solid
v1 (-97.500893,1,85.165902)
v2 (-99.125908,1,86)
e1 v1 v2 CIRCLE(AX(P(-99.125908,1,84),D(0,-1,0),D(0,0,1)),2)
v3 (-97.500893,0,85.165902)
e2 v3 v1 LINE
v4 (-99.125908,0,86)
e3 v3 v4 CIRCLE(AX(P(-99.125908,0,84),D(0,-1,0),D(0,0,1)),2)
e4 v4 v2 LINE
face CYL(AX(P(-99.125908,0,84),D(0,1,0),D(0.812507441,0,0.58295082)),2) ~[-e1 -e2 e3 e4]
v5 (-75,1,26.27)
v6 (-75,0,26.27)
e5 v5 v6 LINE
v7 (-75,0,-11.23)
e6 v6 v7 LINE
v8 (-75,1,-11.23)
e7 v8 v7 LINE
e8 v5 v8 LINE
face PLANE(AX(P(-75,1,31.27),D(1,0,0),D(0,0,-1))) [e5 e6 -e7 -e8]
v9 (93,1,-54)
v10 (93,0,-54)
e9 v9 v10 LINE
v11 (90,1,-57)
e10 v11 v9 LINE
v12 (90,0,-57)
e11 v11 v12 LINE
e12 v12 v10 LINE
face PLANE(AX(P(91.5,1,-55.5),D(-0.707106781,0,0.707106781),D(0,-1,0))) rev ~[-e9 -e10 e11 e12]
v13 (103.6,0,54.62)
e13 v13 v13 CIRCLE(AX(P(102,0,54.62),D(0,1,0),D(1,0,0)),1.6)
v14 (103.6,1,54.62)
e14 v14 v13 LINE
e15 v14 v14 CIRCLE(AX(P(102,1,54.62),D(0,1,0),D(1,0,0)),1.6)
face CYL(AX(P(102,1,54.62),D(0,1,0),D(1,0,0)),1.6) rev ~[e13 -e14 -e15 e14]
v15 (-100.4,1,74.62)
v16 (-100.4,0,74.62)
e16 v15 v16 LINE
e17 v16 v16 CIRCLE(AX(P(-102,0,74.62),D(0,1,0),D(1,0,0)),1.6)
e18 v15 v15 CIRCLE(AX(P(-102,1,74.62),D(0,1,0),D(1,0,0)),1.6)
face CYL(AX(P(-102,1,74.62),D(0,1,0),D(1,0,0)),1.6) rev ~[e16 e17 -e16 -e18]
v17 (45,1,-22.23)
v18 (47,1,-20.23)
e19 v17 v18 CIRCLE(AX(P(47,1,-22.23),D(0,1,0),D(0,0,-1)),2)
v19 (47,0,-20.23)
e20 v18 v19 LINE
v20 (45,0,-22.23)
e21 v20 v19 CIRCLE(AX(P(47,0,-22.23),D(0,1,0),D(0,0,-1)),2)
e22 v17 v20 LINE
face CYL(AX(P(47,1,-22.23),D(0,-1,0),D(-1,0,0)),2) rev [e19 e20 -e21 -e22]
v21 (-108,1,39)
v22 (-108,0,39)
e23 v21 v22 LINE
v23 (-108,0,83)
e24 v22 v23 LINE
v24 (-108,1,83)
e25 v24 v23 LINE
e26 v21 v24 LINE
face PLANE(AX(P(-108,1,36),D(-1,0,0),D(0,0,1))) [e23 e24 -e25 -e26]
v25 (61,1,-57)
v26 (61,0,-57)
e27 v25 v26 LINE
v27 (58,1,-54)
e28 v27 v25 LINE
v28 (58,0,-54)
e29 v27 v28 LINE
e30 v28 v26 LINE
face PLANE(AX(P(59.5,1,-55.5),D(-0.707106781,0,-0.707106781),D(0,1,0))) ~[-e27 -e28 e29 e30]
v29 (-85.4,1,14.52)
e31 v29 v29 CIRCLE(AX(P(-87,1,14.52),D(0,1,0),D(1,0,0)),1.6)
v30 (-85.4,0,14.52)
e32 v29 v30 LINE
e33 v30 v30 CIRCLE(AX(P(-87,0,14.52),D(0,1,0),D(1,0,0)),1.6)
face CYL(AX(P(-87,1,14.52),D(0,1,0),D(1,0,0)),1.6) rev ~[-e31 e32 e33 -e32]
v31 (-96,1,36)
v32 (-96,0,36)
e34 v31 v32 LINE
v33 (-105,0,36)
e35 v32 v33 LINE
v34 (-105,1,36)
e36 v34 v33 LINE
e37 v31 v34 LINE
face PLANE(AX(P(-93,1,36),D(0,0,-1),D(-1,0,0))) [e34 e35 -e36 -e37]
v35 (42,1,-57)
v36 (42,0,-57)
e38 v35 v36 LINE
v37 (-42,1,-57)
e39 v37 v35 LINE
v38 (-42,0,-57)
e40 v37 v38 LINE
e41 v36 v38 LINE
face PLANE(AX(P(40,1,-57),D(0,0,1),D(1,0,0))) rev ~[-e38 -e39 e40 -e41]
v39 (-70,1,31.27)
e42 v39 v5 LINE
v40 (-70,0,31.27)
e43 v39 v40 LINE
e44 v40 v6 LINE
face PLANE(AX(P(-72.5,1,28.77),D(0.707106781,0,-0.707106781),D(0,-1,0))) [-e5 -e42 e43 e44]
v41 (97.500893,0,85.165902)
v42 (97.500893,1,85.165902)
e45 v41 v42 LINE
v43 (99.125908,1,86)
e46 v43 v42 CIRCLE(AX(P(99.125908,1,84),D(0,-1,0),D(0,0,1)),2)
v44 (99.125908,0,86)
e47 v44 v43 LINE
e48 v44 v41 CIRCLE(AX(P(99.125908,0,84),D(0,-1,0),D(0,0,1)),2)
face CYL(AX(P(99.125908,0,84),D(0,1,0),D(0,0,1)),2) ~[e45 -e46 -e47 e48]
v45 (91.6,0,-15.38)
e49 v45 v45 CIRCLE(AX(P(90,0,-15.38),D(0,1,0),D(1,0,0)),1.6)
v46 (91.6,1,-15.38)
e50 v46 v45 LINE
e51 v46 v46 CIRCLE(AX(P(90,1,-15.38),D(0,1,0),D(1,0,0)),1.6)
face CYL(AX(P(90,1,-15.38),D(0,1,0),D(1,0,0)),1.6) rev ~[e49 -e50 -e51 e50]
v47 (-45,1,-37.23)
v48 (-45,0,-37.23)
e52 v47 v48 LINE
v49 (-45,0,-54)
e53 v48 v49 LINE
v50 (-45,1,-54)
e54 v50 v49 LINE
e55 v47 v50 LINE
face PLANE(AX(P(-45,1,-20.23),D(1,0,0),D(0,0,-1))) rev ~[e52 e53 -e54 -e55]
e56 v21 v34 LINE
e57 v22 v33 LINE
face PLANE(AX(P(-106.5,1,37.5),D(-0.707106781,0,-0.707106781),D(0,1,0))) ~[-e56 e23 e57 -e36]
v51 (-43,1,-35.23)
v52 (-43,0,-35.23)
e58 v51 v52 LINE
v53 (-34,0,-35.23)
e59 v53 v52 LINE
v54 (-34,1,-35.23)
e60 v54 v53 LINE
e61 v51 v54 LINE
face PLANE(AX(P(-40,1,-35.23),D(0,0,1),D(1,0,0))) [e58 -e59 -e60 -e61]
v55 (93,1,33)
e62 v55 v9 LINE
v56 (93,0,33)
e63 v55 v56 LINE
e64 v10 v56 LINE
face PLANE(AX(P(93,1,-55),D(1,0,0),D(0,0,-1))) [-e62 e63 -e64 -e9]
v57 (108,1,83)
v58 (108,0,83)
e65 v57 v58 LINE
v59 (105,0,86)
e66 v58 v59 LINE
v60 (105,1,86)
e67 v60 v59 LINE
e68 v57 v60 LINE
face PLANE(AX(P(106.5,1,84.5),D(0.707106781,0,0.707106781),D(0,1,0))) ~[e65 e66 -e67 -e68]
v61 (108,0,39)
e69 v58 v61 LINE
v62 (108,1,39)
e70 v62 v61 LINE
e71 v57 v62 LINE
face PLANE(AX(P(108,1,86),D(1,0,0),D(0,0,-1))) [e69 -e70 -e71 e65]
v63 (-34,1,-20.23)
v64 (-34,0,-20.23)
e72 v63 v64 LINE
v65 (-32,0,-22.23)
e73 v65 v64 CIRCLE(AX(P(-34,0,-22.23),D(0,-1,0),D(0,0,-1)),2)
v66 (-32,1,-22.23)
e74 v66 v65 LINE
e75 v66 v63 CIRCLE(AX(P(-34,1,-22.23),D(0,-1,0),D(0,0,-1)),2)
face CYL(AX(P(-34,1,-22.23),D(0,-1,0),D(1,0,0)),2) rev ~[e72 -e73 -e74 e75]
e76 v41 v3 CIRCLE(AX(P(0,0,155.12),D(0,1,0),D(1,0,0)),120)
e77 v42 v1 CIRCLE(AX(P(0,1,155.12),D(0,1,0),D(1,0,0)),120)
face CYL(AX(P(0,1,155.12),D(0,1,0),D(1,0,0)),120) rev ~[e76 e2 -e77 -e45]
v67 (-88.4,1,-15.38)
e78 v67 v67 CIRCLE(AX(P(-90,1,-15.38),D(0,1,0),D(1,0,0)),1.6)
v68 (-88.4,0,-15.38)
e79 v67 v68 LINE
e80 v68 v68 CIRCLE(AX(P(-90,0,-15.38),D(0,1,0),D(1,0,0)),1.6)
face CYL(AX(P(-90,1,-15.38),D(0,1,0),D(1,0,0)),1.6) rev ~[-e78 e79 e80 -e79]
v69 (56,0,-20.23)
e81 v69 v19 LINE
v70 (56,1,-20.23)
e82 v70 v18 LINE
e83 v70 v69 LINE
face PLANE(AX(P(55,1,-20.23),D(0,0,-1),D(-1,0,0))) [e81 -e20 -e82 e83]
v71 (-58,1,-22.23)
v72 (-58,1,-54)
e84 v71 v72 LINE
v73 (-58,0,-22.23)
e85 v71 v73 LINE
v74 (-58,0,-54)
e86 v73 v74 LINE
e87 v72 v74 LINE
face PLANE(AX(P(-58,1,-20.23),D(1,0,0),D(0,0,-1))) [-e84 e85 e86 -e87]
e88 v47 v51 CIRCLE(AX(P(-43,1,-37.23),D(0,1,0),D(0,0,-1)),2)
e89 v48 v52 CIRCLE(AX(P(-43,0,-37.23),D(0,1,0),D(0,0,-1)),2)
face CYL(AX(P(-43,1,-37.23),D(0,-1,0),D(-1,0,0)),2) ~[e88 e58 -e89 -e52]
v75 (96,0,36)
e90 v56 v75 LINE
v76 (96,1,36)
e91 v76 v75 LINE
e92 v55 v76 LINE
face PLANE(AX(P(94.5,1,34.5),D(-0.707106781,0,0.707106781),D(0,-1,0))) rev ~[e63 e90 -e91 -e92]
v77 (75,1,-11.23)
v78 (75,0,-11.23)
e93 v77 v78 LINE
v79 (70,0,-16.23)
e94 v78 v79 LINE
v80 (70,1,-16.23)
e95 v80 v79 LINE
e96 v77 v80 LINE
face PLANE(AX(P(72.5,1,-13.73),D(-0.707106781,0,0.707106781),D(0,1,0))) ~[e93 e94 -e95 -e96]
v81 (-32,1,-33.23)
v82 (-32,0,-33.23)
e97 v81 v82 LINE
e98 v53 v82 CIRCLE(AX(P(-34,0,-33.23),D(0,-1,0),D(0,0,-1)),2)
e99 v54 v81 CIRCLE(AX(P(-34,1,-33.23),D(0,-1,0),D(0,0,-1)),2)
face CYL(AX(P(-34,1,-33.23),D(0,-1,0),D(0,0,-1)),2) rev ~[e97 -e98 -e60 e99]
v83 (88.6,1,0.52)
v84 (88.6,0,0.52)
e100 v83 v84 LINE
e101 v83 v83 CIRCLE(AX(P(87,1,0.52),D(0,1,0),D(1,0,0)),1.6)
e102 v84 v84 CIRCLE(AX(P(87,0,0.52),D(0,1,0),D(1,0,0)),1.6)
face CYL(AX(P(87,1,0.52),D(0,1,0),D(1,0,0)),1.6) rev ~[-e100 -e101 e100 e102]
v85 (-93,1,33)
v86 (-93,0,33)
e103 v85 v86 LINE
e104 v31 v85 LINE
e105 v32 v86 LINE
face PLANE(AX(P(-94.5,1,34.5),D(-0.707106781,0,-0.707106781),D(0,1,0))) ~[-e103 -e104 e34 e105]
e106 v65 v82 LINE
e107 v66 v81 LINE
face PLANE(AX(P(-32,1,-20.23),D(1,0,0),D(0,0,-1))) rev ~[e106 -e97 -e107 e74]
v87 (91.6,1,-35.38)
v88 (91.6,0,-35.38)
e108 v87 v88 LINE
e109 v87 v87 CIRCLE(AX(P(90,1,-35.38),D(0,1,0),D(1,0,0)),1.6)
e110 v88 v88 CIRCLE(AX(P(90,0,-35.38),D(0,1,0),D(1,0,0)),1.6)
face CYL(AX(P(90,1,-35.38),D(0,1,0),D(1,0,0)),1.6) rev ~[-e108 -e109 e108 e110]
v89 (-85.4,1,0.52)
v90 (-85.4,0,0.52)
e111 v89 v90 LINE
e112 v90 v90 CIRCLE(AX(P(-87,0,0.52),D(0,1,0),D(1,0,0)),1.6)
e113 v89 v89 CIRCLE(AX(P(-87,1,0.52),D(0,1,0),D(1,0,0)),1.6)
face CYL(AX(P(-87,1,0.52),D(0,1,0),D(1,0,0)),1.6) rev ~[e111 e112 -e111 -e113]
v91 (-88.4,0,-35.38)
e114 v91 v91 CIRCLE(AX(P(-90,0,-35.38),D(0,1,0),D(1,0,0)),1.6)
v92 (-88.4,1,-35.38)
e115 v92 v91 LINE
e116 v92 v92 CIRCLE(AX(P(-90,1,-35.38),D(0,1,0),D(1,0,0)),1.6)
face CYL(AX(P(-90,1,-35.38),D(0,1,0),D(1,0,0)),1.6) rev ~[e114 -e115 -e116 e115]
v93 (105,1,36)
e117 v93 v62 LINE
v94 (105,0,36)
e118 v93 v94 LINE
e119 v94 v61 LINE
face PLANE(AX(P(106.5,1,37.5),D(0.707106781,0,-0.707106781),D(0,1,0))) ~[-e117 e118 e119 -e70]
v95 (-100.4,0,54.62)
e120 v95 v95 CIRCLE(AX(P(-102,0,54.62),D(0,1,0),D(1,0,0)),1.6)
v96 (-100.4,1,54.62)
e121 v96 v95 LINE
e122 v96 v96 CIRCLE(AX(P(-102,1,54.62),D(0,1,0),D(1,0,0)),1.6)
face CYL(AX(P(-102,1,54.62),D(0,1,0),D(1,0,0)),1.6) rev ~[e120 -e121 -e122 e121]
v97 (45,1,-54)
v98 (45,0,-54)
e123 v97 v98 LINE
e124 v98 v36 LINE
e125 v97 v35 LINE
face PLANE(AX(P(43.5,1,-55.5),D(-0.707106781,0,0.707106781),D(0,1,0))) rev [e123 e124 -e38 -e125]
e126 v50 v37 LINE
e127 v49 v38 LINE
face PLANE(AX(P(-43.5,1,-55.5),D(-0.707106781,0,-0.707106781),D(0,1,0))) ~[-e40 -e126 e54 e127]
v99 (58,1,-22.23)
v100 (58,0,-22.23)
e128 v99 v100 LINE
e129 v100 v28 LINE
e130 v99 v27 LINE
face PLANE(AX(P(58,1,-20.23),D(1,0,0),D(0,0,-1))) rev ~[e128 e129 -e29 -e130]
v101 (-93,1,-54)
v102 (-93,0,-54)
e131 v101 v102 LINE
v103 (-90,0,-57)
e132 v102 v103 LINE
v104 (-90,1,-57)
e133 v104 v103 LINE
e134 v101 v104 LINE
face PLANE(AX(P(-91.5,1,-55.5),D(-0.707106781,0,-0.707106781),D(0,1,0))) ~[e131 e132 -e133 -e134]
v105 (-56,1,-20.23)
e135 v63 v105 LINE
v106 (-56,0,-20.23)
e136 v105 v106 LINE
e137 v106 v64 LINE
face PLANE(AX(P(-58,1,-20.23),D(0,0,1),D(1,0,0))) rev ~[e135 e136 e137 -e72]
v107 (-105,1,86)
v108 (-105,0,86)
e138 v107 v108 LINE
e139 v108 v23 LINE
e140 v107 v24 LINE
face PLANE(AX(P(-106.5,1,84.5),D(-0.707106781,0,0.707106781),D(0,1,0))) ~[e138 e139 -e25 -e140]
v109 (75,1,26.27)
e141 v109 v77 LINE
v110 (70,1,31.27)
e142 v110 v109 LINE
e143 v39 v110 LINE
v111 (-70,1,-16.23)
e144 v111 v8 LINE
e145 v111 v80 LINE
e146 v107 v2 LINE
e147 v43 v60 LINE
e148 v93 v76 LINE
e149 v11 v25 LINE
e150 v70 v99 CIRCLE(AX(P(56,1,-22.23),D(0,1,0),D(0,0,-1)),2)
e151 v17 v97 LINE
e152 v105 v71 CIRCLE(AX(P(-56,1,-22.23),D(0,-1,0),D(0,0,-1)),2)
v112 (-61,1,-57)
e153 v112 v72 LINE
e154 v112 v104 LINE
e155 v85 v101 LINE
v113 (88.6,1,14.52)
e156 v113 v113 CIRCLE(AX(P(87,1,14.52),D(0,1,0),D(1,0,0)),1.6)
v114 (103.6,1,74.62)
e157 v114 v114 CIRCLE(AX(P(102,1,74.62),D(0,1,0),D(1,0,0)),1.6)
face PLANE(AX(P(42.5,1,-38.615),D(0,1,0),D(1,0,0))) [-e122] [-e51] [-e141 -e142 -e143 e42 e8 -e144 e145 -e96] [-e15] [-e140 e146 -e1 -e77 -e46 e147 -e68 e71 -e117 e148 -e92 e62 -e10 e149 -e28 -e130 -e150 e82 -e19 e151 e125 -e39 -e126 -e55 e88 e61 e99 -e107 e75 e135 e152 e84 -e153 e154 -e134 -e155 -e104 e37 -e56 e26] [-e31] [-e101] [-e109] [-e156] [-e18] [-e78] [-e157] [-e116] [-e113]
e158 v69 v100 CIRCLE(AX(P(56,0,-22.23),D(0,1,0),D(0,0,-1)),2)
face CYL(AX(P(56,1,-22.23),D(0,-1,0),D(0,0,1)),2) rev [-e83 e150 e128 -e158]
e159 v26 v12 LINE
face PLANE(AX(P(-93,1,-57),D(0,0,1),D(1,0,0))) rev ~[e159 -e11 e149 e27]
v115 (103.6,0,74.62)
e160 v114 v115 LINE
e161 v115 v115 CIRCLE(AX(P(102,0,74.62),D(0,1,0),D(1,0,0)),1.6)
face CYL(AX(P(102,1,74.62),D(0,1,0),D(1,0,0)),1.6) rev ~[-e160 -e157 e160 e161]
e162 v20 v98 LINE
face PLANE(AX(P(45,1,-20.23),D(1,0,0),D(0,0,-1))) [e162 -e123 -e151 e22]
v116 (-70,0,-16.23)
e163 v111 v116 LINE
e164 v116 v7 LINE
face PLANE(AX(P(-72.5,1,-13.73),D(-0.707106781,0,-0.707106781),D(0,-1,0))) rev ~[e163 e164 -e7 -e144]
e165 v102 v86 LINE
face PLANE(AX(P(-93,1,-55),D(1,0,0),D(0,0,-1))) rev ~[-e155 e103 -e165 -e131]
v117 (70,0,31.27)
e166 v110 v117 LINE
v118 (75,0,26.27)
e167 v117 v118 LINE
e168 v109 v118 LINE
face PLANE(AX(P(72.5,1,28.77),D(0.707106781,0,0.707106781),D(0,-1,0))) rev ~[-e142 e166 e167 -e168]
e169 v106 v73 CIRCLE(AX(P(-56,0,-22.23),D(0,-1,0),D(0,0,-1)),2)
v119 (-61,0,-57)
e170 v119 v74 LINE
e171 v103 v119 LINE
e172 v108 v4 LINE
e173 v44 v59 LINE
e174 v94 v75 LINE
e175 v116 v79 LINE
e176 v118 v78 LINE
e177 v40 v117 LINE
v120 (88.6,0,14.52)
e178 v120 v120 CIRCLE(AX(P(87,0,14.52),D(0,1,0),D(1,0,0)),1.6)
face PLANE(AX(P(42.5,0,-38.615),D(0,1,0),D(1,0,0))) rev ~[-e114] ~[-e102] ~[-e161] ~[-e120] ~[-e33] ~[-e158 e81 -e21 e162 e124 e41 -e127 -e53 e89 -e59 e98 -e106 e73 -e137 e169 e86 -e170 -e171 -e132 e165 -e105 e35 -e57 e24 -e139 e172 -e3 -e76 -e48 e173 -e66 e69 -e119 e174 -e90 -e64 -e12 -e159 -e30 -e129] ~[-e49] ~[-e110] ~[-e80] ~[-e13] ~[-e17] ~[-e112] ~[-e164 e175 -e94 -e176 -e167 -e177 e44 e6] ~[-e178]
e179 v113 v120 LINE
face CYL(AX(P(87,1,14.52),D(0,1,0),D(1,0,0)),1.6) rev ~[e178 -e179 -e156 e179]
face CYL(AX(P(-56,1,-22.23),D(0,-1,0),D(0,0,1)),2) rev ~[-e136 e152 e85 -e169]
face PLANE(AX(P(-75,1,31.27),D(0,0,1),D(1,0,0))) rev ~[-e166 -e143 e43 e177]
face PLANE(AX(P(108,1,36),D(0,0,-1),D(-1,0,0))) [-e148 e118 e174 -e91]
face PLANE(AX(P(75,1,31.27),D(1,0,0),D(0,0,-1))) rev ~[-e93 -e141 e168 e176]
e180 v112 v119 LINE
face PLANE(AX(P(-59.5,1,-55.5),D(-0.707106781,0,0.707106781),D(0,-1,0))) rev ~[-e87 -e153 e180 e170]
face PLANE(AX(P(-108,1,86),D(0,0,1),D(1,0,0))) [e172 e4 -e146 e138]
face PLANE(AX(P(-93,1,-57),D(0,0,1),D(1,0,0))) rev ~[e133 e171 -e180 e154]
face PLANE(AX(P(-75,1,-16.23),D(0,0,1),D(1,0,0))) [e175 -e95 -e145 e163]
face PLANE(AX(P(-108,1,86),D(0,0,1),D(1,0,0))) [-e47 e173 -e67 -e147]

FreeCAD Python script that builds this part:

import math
import FreeCAD as App
import Part
import Sketcher

V = App.Vector


def edges_at(feature, points):
    """Names of the edges that pass closest to the given points."""
    edges = feature.Shape.Edges
    near = lambda p: min(range(len(edges)), key=lambda i: edges[i].distToShape(Part.Vertex(*p))[0])
    return sorted({f"Edge{near(p) + 1}" for p in points})


def add_polygon(sketch, points):
    """Adds a closed chain of lines whose ends are joined by coincident constraints."""
    first, n = sketch.GeometryCount, len(points)
    for a, b in zip(points, points[1:] + points[:1]):
        sketch.addGeometry(Part.LineSegment(App.Vector(*a, 0), App.Vector(*b, 0)), False)
    for i in range(n):
        sketch.addConstraint(Sketcher.Constraint("Coincident", first + i, 2, first + (i + 1) % n, 1))

doc = App.newDocument("Part")
body = doc.addObject("PartDesign::Body", "Body")

# Sketch on XZ plane
sketch1 = body.newObject("Sketcher::SketchObject", "Sketch")
sketch1.AttachmentSupport = (doc.getObject("XZ_Plane"), [""])
sketch1.MapMode = "FlatFace"
add_polygon(sketch1, [(-93, -55), (-93, 55), (93, 55), (93, -55)])  # lines 0-3
sketch1.addConstraint(Sketcher.Constraint("Vertical", 0))
sketch1.addConstraint(Sketcher.Constraint("Horizontal", 1))
sketch1.addConstraint(Sketcher.Constraint("Vertical", 2))
sketch1.addConstraint(Sketcher.Constraint("Horizontal", 3))
sketch1.addConstraint(Sketcher.Constraint("Symmetric", 0, 2, 2, 2, -1, 1))
sketch1.addConstraint(Sketcher.Constraint("DistanceX", 1, 1, 1, 2, 186.0))
sketch1.addConstraint(Sketcher.Constraint("DistanceY", 0, 1, 0, 2, 110.0))
pad1 = body.newObject("PartDesign::Pad", "Pad")
pad1.Profile = sketch1
pad1.Length = 1
pad1.Reversed = True

# Sketch on XZ plane
sketch2 = body.newObject("Sketcher::SketchObject", "Sketch001")
sketch2.AttachmentSupport = (doc.getObject("XZ_Plane"), [""])
sketch2.MapMode = "FlatFace"
sketch2.AttachmentOffset = App.Placement(V(0, 0, -1), App.Rotation())
sketch2.addGeometry(Part.Circle(V(90, -15.4, 0), V(0, 0, 1), 1.6), False)
sketch2.addGeometry(Part.Circle(V(90, -35.4, 0), V(0, 0, 1), 1.6), False)
sketch2.addGeometry(Part.Circle(V(-90, -35.4, 0), V(0, 0, 1), 1.6), False)
sketch2.addGeometry(Part.Circle(V(-90, -15.4, 0), V(0, 0, 1), 1.6), False)
sketch2.addConstraint(Sketcher.Constraint("Equal", 0, 1))
sketch2.addConstraint(Sketcher.Constraint("Equal", 1, 2))
sketch2.addConstraint(Sketcher.Constraint("Equal", 2, 3))
sketch2.addConstraint(Sketcher.Constraint("Symmetric", 1, 3, 2, 3, -2))
sketch2.addConstraint(Sketcher.Constraint("Symmetric", 0, 3, 3, 3, -2))
sketch2.addConstraint(Sketcher.Constraint("Vertical", 0, 3, 1, 3))
sketch2.addConstraint(Sketcher.Constraint("Diameter", 0, 3.2))
sketch2.addConstraint(Sketcher.Constraint("DistanceX", -1, 1, 0, 3, 90.0))
sketch2.addConstraint(Sketcher.Constraint("DistanceY", 1, 3, 0, 3, 20.0))
sketch2.addConstraint(Sketcher.Constraint("DistanceY", 0, 3, -1, 1, 15.38))
pocket1 = body.newObject("PartDesign::Pocket", "Pocket")
pocket1.Profile = sketch2
pocket1.Type = "ThroughAll"
pocket1.Reversed = True

# Sketch on XZ plane
sketch3 = body.newObject("Sketcher::SketchObject", "Sketch002")
sketch3.AttachmentSupport = (doc.getObject("XZ_Plane"), [""])
sketch3.MapMode = "FlatFace"
sketch3.AttachmentOffset = App.Placement(V(0, 0, -1), App.Rotation())
add_polygon(sketch3, [(-108, 86), (108, 86), (108, 36), (93, 36), (93, 55), (-93, 55), (-93, 36), (-108, 36)])  # lines 0-7
sketch3.addConstraint(Sketcher.Constraint("Horizontal", 0))
sketch3.addConstraint(Sketcher.Constraint("Vertical", 1))
sketch3.addConstraint(Sketcher.Constraint("Horizontal", 2))
sketch3.addConstraint(Sketcher.Constraint("Vertical", 3))
sketch3.addConstraint(Sketcher.Constraint("Horizontal", 4))
sketch3.addConstraint(Sketcher.Constraint("Vertical", 5))
sketch3.addConstraint(Sketcher.Constraint("Horizontal", 6))
sketch3.addConstraint(Sketcher.Constraint("Vertical", 7))
sketch3.addConstraint(Sketcher.Constraint("Symmetric", 2, 2, 5, 2, -2))
sketch3.addConstraint(Sketcher.Constraint("Equal", 2, 6))
sketch3.addConstraint(Sketcher.Constraint("DistanceX", 0, 1, 0, 2, 216.0))
sketch3.addConstraint(Sketcher.Constraint("DistanceX", 2, 2, 2, 1, 15.0))
sketch3.addConstraint(Sketcher.Constraint("DistanceY", 1, 2, 1, 1, 50.0))
sketch3.addConstraint(Sketcher.Constraint("DistanceY", 3, 1, 3, 2, 19.0))
sketch3.addConstraint(Sketcher.Constraint("DistanceY", -1, 1, 0, 2, 86.0))
pad2 = body.newObject("PartDesign::Pad", "Pad001")
pad2.Profile = sketch3
pad2.Length = 1

# Sketch on XZ plane
sketch4 = body.newObject("Sketcher::SketchObject", "Sketch003")
sketch4.AttachmentSupport = (doc.getObject("XZ_Plane"), [""])
sketch4.MapMode = "FlatFace"
sketch4.AttachmentOffset = App.Placement(V(0, 0, -1), App.Rotation())
sketch4.addGeometry(Part.Circle(V(0, 155, 0), V(0, 0, 1), 120), False)
sketch4.addConstraint(Sketcher.Constraint("PointOnObject", 0, 3, -2))
sketch4.addConstraint(Sketcher.Constraint("Diameter", 0, 240.0))
sketch4.addConstraint(Sketcher.Constraint("DistanceY", -1, 1, 0, 3, 155.12))
pocket2 = body.newObject("PartDesign::Pocket", "Pocket001")
pocket2.Profile = sketch4
pocket2.Type = "ThroughAll"
pocket2.Reversed = True

# Sketch on XZ plane
sketch5 = body.newObject("Sketcher::SketchObject", "Sketch004")
sketch5.AttachmentSupport = (doc.getObject("XZ_Plane"), [""])
sketch5.MapMode = "FlatFace"
sketch5.AttachmentOffset = App.Placement(V(0, 0, -1), App.Rotation())
add_polygon(sketch5, [(-93, -57), (-93, -55), (93, -55), (93, -57)])  # lines 0-3
sketch5.addConstraint(Sketcher.Constraint("Vertical", 0))
sketch5.addConstraint(Sketcher.Constraint("Horizontal", 1))
sketch5.addConstraint(Sketcher.Constraint("Vertical", 2))
sketch5.addConstraint(Sketcher.Constraint("Horizontal", 3))
sketch5.addConstraint(Sketcher.Constraint("DistanceX", 1, 1, 1, 2, 186.0))
sketch5.addConstraint(Sketcher.Constraint("DistanceY", 0, 1, 0, 2, 2.0))
sketch5.addConstraint(Sketcher.Constraint("DistanceX", 0, 2, -1, 1, 93.0))
sketch5.addConstraint(Sketcher.Constraint("DistanceY", 0, 2, -1, 1, 55.0))
pad3 = body.newObject("PartDesign::Pad", "Pad002")
pad3.Profile = sketch5
pad3.Length = 1

# Sketch on XZ plane
sketch6 = body.newObject("Sketcher::SketchObject", "Sketch005")
sketch6.AttachmentSupport = (doc.getObject("XZ_Plane"), [""])
sketch6.MapMode = "FlatFace"
sketch6.AttachmentOffset = App.Placement(V(0, 0, -1), App.Rotation())
sketch6.addGeometry(Part.Circle(V(47.5, -46.4, 0), V(0, 0, 1), 1.2), False)
sketch6.addGeometry(Part.Circle(V(47.5, -53.9, 0), V(0, 0, 1), 1.2), False)
sketch6.addGeometry(Part.Circle(V(102, 74.6, 0), V(0, 0, 1), 1.6), False)
sketch6.addGeometry(Part.Circle(V(102, 54.6, 0), V(0, 0, 1), 1.6), False)
sketch6.addGeometry(Part.Circle(V(-102, 54.6, 0), V(0, 0, 1), 1.6), False)
sketch6.addGeometry(Part.Circle(V(-102, 74.6, 0), V(0, 0, 1), 1.6), False)
sketch6.addGeometry(Part.Circle(V(-47.5, -53.9, 0), V(0, 0, 1), 1.2), False)
sketch6.addGeometry(Part.Circle(V(-47.5, -46.4, 0), V(0, 0, 1), 1.2), False)
sketch6.addConstraint(Sketcher.Constraint("Equal", 0, 1))
sketch6.addConstraint(Sketcher.Constraint("Equal", 2, 3))
sketch6.addConstraint(Sketcher.Constraint("Equal", 3, 4))
sketch6.addConstraint(Sketcher.Constraint("Equal", 4, 5))
sketch6.addConstraint(Sketcher.Constraint("Equal", 1, 6))
sketch6.addConstraint(Sketcher.Constraint("Equal", 6, 7))
sketch6.addConstraint(Sketcher.Constraint("Symmetric", 3, 3, 4, 3, -2))
sketch6.addConstraint(Sketcher.Constraint("Symmetric", 2, 3, 5, 3, -2))
sketch6.addConstraint(Sketcher.Constraint("Symmetric", 1, 3, 6, 3, -2))
sketch6.addConstraint(Sketcher.Constraint("Symmetric", 0, 3, 7, 3, -2))
sketch6.addConstraint(Sketcher.Constraint("Vertical", 0, 3, 1, 3))
sketch6.addConstraint(Sketcher.Constraint("Vertical", 2, 3, 3, 3))
sketch6.addConstraint(Sketcher.Constraint("Diameter", 0, 2.5))
sketch6.addConstraint(Sketcher.Constraint("Diameter", 2, 3.2))
sketch6.addConstraint(Sketcher.Constraint("DistanceX", -1, 1, 2, 3, 102.0))
sketch6.addConstraint(Sketcher.Constraint("DistanceY", 0, 3, 2, 3, 121.0))
sketch6.addConstraint(Sketcher.Constraint("DistanceY", 3, 3, 2, 3, 20.0))
sketch6.addConstraint(Sketcher.Constraint("DistanceX", 6, 3, 1, 3, 95.0))
sketch6.addConstraint(Sketcher.Constraint("DistanceY", 1, 3, 0, 3, 7.5))
sketch6.addConstraint(Sketcher.Constraint("DistanceY", 0, 3, -1, 1, 46.38))
pocket3 = body.newObject("PartDesign::Pocket", "Pocket002")
pocket3.Profile = sketch6
pocket3.Type = "ThroughAll"
pocket3.Reversed = True

# Sketch on XZ plane
sketch7 = body.newObject("Sketcher::SketchObject", "Sketch006")
sketch7.AttachmentSupport = (doc.getObject("XZ_Plane"), [""])
sketch7.MapMode = "FlatFace"
sketch7.AttachmentOffset = App.Placement(V(0, 0, -1), App.Rotation())
sketch7.addGeometry(Part.LineSegment(V(40, -20.2, 0), V(55, -20.2, 0)), False)
sketch7.addGeometry(Part.LineSegment(V(55, -20.2, 0), V(55, -66.8, 0)), False)
sketch7.addGeometry(Part.ArcOfCircle(Part.Circle(V(52, -66.8, 0), V(0, 0, 1), 3), math.radians(-90), math.radians(0)), False)
sketch7.addGeometry(Part.LineSegment(V(52, -69.8, 0), V(43, -69.8, 0)), False)
sketch7.addGeometry(Part.ArcOfCircle(Part.Circle(V(43, -66.8, 0), V(0, 0, 1), 3), math.radians(180), math.radians(270)), False)
sketch7.addGeometry(Part.LineSegment(V(40, -66.8, 0), V(40, -20.2, 0)), False)
sketch7.addGeometry(Part.LineSegment(V(-40, -20.2, 0), V(-40, -66.8, 0)), False)
sketch7.addGeometry(Part.ArcOfCircle(Part.Circle(V(-43, -66.8, 0), V(0, 0, 1), 3), math.radians(-90), math.radians(0)), False)
sketch7.addGeometry(Part.LineSegment(V(-43, -69.8, 0), V(-52, -69.8, 0)), False)
sketch7.addGeometry(Part.ArcOfCircle(Part.Circle(V(-52, -66.8, 0), V(0, 0, 1), 3), math.radians(180), math.radians(270)), False)
sketch7.addGeometry(Part.LineSegment(V(-55, -66.8, 0), V(-55, -20.2, 0)), False)
sketch7.addGeometry(Part.LineSegment(V(-55, -20.2, 0), V(-40, -20.2, 0)), False)
sketch7.addConstraint(Sketcher.Constraint("Coincident", 0, 2, 1, 1))
sketch7.addConstraint(Sketcher.Constraint("Tangent", 1, 2, 2, 2))
sketch7.addConstraint(Sketcher.Constraint("Tangent", 2, 1, 3, 1))
sketch7.addConstraint(Sketcher.Constraint("Tangent", 3, 2, 4, 2))
sketch7.addConstraint(Sketcher.Constraint("Tangent", 4, 1, 5, 1))
sketch7.addConstraint(Sketcher.Constraint("Coincident", 5, 2, 0, 1))
sketch7.addConstraint(Sketcher.Constraint("Tangent", 6, 2, 7, 2))
sketch7.addConstraint(Sketcher.Constraint("Tangent", 7, 1, 8, 1))
sketch7.addConstraint(Sketcher.Constraint("Tangent", 8, 2, 9, 2))
sketch7.addConstraint(Sketcher.Constraint("Tangent", 9, 1, 10, 1))
sketch7.addConstraint(Sketcher.Constraint("Coincident", 10, 2, 11, 1))
sketch7.addConstraint(Sketcher.Constraint("Coincident", 11, 2, 6, 1))
sketch7.addConstraint(Sketcher.Constraint("Horizontal", 0))
sketch7.addConstraint(Sketcher.Constraint("Vertical", 1))
sketch7.addConstraint(Sketcher.Constraint("Horizontal", 3))
sketch7.addConstraint(Sketcher.Constraint("Vertical", 5))
sketch7.addConstraint(Sketcher.Constraint("Vertical", 6))
sketch7.addConstraint(Sketcher.Constraint("Horizontal", 8))
sketch7.addConstraint(Sketcher.Constraint("Vertical", 10))
sketch7.addConstraint(Sketcher.Constraint("Horizontal", 11))
sketch7.addConstraint(Sketcher.Constraint("Equal", 2, 4))
sketch7.addConstraint(Sketcher.Constraint("Equal", 4, 7))
sketch7.addConstraint(Sketcher.Constraint("Equal", 7, 9))
sketch7.addConstraint(Sketcher.Constraint("Symmetric", 4, 3, 7, 3, -2))
sketch7.addConstraint(Sketcher.Constraint("Symmetric", 0, 2, 10, 2, -2))
sketch7.addConstraint(Sketcher.Constraint("Radius", 2, 3.0))
sketch7.addConstraint(Sketcher.Constraint("DistanceX", 0, 1, 0, 2, 15.0))
sketch7.addConstraint(Sketcher.Constraint("DistanceX", -1, 1, 2, 3, 52.0))
sketch7.addConstraint(Sketcher.Constraint("DistanceY", 0, 2, -1, 1, 20.23))
sketch7.addConstraint(Sketcher.Constraint("DistanceY", 1, 2, 1, 1, 46.534573))
pocket4 = body.newObject("PartDesign::Pocket", "Pocket003")
pocket4.Profile = sketch7
pocket4.Type = "ThroughAll"
pocket4.Reversed = True

# Sketch on XZ plane
sketch8 = body.newObject("Sketcher::SketchObject", "Sketch007")
sketch8.AttachmentSupport = (doc.getObject("XZ_Plane"), [""])
sketch8.MapMode = "FlatFace"
sketch8.AttachmentOffset = App.Placement(V(0, 0, -1), App.Rotation())
add_polygon(sketch8, [(-40, -35), (-40, -20), (-32, -20), (-32, -35)])  # lines 0-3
sketch8.addConstraint(Sketcher.Constraint("Vertical", 0))
sketch8.addConstraint(Sketcher.Constraint("Horizontal", 1))
sketch8.addConstraint(Sketcher.Constraint("Vertical", 2))
sketch8.addConstraint(Sketcher.Constraint("Horizontal", 3))
sketch8.addConstraint(Sketcher.Constraint("DistanceX", 1, 1, 1, 2, 8.0))
sketch8.addConstraint(Sketcher.Constraint("DistanceY", 0, 1, 0, 2, 15.0))
sketch8.addConstraint(Sketcher.Constraint("DistanceX", 0, 2, -1, 1, 40.0))
sketch8.addConstraint(Sketcher.Constraint("DistanceY", 0, 2, -1, 1, 20.23))
pocket5 = body.newObject("PartDesign::Pocket", "Pocket004")
pocket5.Profile = sketch8
pocket5.Type = "ThroughAll"
pocket5.Reversed = True

# Sketch on XZ plane
sketch9 = body.newObject("Sketcher::SketchObject", "Sketch008")
sketch9.AttachmentSupport = (doc.getObject("XZ_Plane"), [""])
sketch9.MapMode = "FlatFace"
sketch9.AttachmentOffset = App.Placement(V(0, 0, -1), App.Rotation())
add_polygon(sketch9, [(-75, -16), (-75, 31), (75, 31), (75, -16)])  # lines 0-3
sketch9.addConstraint(Sketcher.Constraint("Vertical", 0))
sketch9.addConstraint(Sketcher.Constraint("Horizontal", 1))
sketch9.addConstraint(Sketcher.Constraint("Vertical", 2))
sketch9.addConstraint(Sketcher.Constraint("Horizontal", 3))
sketch9.addConstraint(Sketcher.Constraint("DistanceX", 1, 1, 1, 2, 150.0))
sketch9.addConstraint(Sketcher.Constraint("DistanceY", 0, 1, 0, 2, 47.5))
sketch9.addConstraint(Sketcher.Constraint("DistanceX", 0, 2, -1, 1, 75.0))
sketch9.addConstraint(Sketcher.Constraint("DistanceY", -1, 1, 0, 2, 31.27))
pocket6 = body.newObject("PartDesign::Pocket", "Pocket005")
pocket6.Profile = sketch9
pocket6.Type = "ThroughAll"
pocket6.Reversed = True
doc.recompute()

chamfer = body.newObject("PartDesign::Chamfer", "Chamfer")
chamfer.Base = (pocket6, edges_at(pocket6, [
    (75, 0.5, -16.23),
    (75, 0.5, 31.27),
    (-75, 0.5, 31.27),
    (-75, 0.5, -16.23),
]))
chamfer.Size = 5

# Sketch on XZ plane
sketch10 = body.newObject("Sketcher::SketchObject", "Sketch009")
sketch10.AttachmentSupport = (doc.getObject("XZ_Plane"), [""])
sketch10.MapMode = "FlatFace"
sketch10.AttachmentOffset = App.Placement(V(0, 0, -1), App.Rotation())
sketch10.addGeometry(Part.Circle(V(-87, 0.5, 0), V(0, 0, 1), 1.6), False)
sketch10.addGeometry(Part.Circle(V(-87, 14.5, 0), V(0, 0, 1), 1.6), False)
sketch10.addGeometry(Part.Circle(V(87, 14.5, 0), V(0, 0, 1), 1.6), False)
sketch10.addGeometry(Part.Circle(V(87, 0.5, 0), V(0, 0, 1), 1.6), False)
sketch10.addConstraint(Sketcher.Constraint("Equal", 0, 1))
sketch10.addConstraint(Sketcher.Constraint("Equal", 1, 2))
sketch10.addConstraint(Sketcher.Constraint("Equal", 2, 3))
sketch10.addConstraint(Sketcher.Constraint("Symmetric", 1, 3, 2, 3, -2))
sketch10.addConstraint(Sketcher.Constraint("Symmetric", 0, 3, 3, 3, -2))
sketch10.addConstraint(Sketcher.Constraint("Vertical", 0, 3, 1, 3))
sketch10.addConstraint(Sketcher.Constraint("Diameter", 0, 3.2))
sketch10.addConstraint(Sketcher.Constraint("DistanceX", 0, 3, -1, 1, 87.0))
sketch10.addConstraint(Sketcher.Constraint("DistanceY", 0, 3, 1, 3, 14.0))
sketch10.addConstraint(Sketcher.Constraint("DistanceY", -1, 1, 0, 3, 0.52))
pocket7 = body.newObject("PartDesign::Pocket", "Pocket006")
pocket7.Profile = sketch10
pocket7.Type = "ThroughAll"
pocket7.Reversed = True

# Sketch on XZ plane
sketch11 = body.newObject("Sketcher::SketchObject", "Sketch010")
sketch11.AttachmentSupport = (doc.getObject("XZ_Plane"), [""])
sketch11.MapMode = "FlatFace"
sketch11.AttachmentOffset = App.Placement(V(0, 0, -1), App.Rotation())
add_polygon(sketch11, [(-58, -57), (-58, -20.2), (-55, -20.2), (-55, -57)])  # lines 0-3
add_polygon(sketch11, [(55, -57), (55, -20.2), (58, -20.2), (58, -57)])  # lines 4-7
sketch11.addConstraint(Sketcher.Constraint("Vertical", 0))
sketch11.addConstraint(Sketcher.Constraint("Horizontal", 1))
sketch11.addConstraint(Sketcher.Constraint("Vertical", 2))
sketch11.addConstraint(Sketcher.Constraint("Horizontal", 3))
sketch11.addConstraint(Sketcher.Constraint("Vertical", 4))
sketch11.addConstraint(Sketcher.Constraint("Horizontal", 5))
sketch11.addConstraint(Sketcher.Constraint("Vertical", 6))
sketch11.addConstraint(Sketcher.Constraint("Horizontal", 7))
sketch11.addConstraint(Sketcher.Constraint("Symmetric", 1, 2, 4, 2, -2))
sketch11.addConstraint(Sketcher.Constraint("Symmetric", 3, 2, 6, 2, -2))
sketch11.addConstraint(Sketcher.Constraint("DistanceX", 1, 1, 1, 2, 3.0))
sketch11.addConstraint(Sketcher.Constraint("DistanceX", 0, 2, -1, 1, 58.0))
sketch11.addConstraint(Sketcher.Constraint("DistanceY", 2, 2, -1, 1, 57.0))
sketch11.addConstraint(Sketcher.Constraint("DistanceY", 0, 1, 0, 2, 36.77))
pocket8 = body.newObject("PartDesign::Pocket", "Pocket007")
pocket8.Profile = sketch11
pocket8.Type = "ThroughAll"
pocket8.Midplane = True

# Sketch on XZ plane
sketch12 = body.newObject("Sketcher::SketchObject", "Sketch011")
sketch12.AttachmentSupport = (doc.getObject("XZ_Plane"), [""])
sketch12.MapMode = "FlatFace"
sketch12.AttachmentOffset = App.Placement(V(0, 0, -1), App.Rotation())
add_polygon(sketch12, [(40, -57), (40, -20), (45, -20), (45, -57)])  # lines 0-3
add_polygon(sketch12, [(-45, -57), (-45, -20), (-40, -20), (-40, -57)])  # lines 4-7
sketch12.addConstraint(Sketcher.Constraint("Vertical", 0))
sketch12.addConstraint(Sketcher.Constraint("Horizontal", 1))
sketch12.addConstraint(Sketcher.Constraint("Vertical", 2))
sketch12.addConstraint(Sketcher.Constraint("Horizontal", 3))
sketch12.addConstraint(Sketcher.Constraint("Vertical", 4))
sketch12.addConstraint(Sketcher.Constraint("Horizontal", 5))
sketch12.addConstraint(Sketcher.Constraint("Vertical", 6))
sketch12.addConstraint(Sketcher.Constraint("Horizontal", 7))
sketch12.addConstraint(Sketcher.Constraint("Symmetric", 1, 2, 4, 2, -2))
sketch12.addConstraint(Sketcher.Constraint("Symmetric", 3, 2, 6, 2, -2))
sketch12.addConstraint(Sketcher.Constraint("DistanceX", 1, 1, 1, 2, 5.0))
sketch12.addConstraint(Sketcher.Constraint("DistanceX", -1, 1, 0, 2, 40.0))
sketch12.addConstraint(Sketcher.Constraint("DistanceY", 2, 2, -1, 1, 57.0))
sketch12.addConstraint(Sketcher.Constraint("DistanceY", 0, 1, 0, 2, 36.77))
pad4 = body.newObject("PartDesign::Pad", "Pad003")
pad4.Profile = sketch12
pad4.Length = 1

# Sketch on XZ plane
sketch13 = body.newObject("Sketcher::SketchObject", "Sketch012")
sketch13.AttachmentSupport = (doc.getObject("XZ_Plane"), [""])
sketch13.MapMode = "FlatFace"
sketch13.AttachmentOffset = App.Placement(V(0, 0, -1), App.Rotation())
add_polygon(sketch13, [(-45, -35), (-45, -20), (-39, -20), (-39, -35)])  # lines 0-3
sketch13.addConstraint(Sketcher.Constraint("Vertical", 0))
sketch13.addConstraint(Sketcher.Constraint("Horizontal", 1))
sketch13.addConstraint(Sketcher.Constraint("Vertical", 2))
sketch13.addConstraint(Sketcher.Constraint("Horizontal", 3))
sketch13.addConstraint(Sketcher.Constraint("DistanceX", 1, 1, 1, 2, 6.0))
sketch13.addConstraint(Sketcher.Constraint("DistanceY", 0, 1, 0, 2, 15.0))
sketch13.addConstraint(Sketcher.Constraint("DistanceX", 0, 2, -1, 1, 45.0))
sketch13.addConstraint(Sketcher.Constraint("DistanceY", 0, 2, -1, 1, 20.23))
pocket9 = body.newObject("PartDesign::Pocket", "Pocket008")
pocket9.Profile = sketch13
pocket9.Type = "ThroughAll"
pocket9.Reversed = True
doc.recompute()

chamfer2 = body.newObject("PartDesign::Chamfer", "Chamfer001")
chamfer2.Base = (pocket9, edges_at(pocket9, [
    (-58, 0.5, -57),
    (58, 0.5, -57),
    (-45, 0.5, -57),
    (45, 0.5, -57),
    (-93, 0.5, 36),
    (93, 0.5, 36),
    (108, 0.5, 36),
    (108, 0.5, 86),
    (-108, 0.5, 86),
    (-108, 0.5, 36),
    (93, 0.5, -57),
    (-93, 0.5, -57),
]))
chamfer2.Size = 3
doc.recompute()

fillet = body.newObject("PartDesign::Fillet", "Fillet")
fillet.Base = (chamfer2, edges_at(chamfer2, [
    (-32, 0.5, -35.23),
    (-32, 0.5, -20.23),
    (-58, 0.5, -20.23),
    (58, 0.5, -20.23),
    (45, 0.5, -20.23),
    (-45, 0.5, -35.23),
    (-98.094, 0.5, 86),
    (98.094, 0.5, 86),
]))
fillet.Radius = 2

doc.recompute()
